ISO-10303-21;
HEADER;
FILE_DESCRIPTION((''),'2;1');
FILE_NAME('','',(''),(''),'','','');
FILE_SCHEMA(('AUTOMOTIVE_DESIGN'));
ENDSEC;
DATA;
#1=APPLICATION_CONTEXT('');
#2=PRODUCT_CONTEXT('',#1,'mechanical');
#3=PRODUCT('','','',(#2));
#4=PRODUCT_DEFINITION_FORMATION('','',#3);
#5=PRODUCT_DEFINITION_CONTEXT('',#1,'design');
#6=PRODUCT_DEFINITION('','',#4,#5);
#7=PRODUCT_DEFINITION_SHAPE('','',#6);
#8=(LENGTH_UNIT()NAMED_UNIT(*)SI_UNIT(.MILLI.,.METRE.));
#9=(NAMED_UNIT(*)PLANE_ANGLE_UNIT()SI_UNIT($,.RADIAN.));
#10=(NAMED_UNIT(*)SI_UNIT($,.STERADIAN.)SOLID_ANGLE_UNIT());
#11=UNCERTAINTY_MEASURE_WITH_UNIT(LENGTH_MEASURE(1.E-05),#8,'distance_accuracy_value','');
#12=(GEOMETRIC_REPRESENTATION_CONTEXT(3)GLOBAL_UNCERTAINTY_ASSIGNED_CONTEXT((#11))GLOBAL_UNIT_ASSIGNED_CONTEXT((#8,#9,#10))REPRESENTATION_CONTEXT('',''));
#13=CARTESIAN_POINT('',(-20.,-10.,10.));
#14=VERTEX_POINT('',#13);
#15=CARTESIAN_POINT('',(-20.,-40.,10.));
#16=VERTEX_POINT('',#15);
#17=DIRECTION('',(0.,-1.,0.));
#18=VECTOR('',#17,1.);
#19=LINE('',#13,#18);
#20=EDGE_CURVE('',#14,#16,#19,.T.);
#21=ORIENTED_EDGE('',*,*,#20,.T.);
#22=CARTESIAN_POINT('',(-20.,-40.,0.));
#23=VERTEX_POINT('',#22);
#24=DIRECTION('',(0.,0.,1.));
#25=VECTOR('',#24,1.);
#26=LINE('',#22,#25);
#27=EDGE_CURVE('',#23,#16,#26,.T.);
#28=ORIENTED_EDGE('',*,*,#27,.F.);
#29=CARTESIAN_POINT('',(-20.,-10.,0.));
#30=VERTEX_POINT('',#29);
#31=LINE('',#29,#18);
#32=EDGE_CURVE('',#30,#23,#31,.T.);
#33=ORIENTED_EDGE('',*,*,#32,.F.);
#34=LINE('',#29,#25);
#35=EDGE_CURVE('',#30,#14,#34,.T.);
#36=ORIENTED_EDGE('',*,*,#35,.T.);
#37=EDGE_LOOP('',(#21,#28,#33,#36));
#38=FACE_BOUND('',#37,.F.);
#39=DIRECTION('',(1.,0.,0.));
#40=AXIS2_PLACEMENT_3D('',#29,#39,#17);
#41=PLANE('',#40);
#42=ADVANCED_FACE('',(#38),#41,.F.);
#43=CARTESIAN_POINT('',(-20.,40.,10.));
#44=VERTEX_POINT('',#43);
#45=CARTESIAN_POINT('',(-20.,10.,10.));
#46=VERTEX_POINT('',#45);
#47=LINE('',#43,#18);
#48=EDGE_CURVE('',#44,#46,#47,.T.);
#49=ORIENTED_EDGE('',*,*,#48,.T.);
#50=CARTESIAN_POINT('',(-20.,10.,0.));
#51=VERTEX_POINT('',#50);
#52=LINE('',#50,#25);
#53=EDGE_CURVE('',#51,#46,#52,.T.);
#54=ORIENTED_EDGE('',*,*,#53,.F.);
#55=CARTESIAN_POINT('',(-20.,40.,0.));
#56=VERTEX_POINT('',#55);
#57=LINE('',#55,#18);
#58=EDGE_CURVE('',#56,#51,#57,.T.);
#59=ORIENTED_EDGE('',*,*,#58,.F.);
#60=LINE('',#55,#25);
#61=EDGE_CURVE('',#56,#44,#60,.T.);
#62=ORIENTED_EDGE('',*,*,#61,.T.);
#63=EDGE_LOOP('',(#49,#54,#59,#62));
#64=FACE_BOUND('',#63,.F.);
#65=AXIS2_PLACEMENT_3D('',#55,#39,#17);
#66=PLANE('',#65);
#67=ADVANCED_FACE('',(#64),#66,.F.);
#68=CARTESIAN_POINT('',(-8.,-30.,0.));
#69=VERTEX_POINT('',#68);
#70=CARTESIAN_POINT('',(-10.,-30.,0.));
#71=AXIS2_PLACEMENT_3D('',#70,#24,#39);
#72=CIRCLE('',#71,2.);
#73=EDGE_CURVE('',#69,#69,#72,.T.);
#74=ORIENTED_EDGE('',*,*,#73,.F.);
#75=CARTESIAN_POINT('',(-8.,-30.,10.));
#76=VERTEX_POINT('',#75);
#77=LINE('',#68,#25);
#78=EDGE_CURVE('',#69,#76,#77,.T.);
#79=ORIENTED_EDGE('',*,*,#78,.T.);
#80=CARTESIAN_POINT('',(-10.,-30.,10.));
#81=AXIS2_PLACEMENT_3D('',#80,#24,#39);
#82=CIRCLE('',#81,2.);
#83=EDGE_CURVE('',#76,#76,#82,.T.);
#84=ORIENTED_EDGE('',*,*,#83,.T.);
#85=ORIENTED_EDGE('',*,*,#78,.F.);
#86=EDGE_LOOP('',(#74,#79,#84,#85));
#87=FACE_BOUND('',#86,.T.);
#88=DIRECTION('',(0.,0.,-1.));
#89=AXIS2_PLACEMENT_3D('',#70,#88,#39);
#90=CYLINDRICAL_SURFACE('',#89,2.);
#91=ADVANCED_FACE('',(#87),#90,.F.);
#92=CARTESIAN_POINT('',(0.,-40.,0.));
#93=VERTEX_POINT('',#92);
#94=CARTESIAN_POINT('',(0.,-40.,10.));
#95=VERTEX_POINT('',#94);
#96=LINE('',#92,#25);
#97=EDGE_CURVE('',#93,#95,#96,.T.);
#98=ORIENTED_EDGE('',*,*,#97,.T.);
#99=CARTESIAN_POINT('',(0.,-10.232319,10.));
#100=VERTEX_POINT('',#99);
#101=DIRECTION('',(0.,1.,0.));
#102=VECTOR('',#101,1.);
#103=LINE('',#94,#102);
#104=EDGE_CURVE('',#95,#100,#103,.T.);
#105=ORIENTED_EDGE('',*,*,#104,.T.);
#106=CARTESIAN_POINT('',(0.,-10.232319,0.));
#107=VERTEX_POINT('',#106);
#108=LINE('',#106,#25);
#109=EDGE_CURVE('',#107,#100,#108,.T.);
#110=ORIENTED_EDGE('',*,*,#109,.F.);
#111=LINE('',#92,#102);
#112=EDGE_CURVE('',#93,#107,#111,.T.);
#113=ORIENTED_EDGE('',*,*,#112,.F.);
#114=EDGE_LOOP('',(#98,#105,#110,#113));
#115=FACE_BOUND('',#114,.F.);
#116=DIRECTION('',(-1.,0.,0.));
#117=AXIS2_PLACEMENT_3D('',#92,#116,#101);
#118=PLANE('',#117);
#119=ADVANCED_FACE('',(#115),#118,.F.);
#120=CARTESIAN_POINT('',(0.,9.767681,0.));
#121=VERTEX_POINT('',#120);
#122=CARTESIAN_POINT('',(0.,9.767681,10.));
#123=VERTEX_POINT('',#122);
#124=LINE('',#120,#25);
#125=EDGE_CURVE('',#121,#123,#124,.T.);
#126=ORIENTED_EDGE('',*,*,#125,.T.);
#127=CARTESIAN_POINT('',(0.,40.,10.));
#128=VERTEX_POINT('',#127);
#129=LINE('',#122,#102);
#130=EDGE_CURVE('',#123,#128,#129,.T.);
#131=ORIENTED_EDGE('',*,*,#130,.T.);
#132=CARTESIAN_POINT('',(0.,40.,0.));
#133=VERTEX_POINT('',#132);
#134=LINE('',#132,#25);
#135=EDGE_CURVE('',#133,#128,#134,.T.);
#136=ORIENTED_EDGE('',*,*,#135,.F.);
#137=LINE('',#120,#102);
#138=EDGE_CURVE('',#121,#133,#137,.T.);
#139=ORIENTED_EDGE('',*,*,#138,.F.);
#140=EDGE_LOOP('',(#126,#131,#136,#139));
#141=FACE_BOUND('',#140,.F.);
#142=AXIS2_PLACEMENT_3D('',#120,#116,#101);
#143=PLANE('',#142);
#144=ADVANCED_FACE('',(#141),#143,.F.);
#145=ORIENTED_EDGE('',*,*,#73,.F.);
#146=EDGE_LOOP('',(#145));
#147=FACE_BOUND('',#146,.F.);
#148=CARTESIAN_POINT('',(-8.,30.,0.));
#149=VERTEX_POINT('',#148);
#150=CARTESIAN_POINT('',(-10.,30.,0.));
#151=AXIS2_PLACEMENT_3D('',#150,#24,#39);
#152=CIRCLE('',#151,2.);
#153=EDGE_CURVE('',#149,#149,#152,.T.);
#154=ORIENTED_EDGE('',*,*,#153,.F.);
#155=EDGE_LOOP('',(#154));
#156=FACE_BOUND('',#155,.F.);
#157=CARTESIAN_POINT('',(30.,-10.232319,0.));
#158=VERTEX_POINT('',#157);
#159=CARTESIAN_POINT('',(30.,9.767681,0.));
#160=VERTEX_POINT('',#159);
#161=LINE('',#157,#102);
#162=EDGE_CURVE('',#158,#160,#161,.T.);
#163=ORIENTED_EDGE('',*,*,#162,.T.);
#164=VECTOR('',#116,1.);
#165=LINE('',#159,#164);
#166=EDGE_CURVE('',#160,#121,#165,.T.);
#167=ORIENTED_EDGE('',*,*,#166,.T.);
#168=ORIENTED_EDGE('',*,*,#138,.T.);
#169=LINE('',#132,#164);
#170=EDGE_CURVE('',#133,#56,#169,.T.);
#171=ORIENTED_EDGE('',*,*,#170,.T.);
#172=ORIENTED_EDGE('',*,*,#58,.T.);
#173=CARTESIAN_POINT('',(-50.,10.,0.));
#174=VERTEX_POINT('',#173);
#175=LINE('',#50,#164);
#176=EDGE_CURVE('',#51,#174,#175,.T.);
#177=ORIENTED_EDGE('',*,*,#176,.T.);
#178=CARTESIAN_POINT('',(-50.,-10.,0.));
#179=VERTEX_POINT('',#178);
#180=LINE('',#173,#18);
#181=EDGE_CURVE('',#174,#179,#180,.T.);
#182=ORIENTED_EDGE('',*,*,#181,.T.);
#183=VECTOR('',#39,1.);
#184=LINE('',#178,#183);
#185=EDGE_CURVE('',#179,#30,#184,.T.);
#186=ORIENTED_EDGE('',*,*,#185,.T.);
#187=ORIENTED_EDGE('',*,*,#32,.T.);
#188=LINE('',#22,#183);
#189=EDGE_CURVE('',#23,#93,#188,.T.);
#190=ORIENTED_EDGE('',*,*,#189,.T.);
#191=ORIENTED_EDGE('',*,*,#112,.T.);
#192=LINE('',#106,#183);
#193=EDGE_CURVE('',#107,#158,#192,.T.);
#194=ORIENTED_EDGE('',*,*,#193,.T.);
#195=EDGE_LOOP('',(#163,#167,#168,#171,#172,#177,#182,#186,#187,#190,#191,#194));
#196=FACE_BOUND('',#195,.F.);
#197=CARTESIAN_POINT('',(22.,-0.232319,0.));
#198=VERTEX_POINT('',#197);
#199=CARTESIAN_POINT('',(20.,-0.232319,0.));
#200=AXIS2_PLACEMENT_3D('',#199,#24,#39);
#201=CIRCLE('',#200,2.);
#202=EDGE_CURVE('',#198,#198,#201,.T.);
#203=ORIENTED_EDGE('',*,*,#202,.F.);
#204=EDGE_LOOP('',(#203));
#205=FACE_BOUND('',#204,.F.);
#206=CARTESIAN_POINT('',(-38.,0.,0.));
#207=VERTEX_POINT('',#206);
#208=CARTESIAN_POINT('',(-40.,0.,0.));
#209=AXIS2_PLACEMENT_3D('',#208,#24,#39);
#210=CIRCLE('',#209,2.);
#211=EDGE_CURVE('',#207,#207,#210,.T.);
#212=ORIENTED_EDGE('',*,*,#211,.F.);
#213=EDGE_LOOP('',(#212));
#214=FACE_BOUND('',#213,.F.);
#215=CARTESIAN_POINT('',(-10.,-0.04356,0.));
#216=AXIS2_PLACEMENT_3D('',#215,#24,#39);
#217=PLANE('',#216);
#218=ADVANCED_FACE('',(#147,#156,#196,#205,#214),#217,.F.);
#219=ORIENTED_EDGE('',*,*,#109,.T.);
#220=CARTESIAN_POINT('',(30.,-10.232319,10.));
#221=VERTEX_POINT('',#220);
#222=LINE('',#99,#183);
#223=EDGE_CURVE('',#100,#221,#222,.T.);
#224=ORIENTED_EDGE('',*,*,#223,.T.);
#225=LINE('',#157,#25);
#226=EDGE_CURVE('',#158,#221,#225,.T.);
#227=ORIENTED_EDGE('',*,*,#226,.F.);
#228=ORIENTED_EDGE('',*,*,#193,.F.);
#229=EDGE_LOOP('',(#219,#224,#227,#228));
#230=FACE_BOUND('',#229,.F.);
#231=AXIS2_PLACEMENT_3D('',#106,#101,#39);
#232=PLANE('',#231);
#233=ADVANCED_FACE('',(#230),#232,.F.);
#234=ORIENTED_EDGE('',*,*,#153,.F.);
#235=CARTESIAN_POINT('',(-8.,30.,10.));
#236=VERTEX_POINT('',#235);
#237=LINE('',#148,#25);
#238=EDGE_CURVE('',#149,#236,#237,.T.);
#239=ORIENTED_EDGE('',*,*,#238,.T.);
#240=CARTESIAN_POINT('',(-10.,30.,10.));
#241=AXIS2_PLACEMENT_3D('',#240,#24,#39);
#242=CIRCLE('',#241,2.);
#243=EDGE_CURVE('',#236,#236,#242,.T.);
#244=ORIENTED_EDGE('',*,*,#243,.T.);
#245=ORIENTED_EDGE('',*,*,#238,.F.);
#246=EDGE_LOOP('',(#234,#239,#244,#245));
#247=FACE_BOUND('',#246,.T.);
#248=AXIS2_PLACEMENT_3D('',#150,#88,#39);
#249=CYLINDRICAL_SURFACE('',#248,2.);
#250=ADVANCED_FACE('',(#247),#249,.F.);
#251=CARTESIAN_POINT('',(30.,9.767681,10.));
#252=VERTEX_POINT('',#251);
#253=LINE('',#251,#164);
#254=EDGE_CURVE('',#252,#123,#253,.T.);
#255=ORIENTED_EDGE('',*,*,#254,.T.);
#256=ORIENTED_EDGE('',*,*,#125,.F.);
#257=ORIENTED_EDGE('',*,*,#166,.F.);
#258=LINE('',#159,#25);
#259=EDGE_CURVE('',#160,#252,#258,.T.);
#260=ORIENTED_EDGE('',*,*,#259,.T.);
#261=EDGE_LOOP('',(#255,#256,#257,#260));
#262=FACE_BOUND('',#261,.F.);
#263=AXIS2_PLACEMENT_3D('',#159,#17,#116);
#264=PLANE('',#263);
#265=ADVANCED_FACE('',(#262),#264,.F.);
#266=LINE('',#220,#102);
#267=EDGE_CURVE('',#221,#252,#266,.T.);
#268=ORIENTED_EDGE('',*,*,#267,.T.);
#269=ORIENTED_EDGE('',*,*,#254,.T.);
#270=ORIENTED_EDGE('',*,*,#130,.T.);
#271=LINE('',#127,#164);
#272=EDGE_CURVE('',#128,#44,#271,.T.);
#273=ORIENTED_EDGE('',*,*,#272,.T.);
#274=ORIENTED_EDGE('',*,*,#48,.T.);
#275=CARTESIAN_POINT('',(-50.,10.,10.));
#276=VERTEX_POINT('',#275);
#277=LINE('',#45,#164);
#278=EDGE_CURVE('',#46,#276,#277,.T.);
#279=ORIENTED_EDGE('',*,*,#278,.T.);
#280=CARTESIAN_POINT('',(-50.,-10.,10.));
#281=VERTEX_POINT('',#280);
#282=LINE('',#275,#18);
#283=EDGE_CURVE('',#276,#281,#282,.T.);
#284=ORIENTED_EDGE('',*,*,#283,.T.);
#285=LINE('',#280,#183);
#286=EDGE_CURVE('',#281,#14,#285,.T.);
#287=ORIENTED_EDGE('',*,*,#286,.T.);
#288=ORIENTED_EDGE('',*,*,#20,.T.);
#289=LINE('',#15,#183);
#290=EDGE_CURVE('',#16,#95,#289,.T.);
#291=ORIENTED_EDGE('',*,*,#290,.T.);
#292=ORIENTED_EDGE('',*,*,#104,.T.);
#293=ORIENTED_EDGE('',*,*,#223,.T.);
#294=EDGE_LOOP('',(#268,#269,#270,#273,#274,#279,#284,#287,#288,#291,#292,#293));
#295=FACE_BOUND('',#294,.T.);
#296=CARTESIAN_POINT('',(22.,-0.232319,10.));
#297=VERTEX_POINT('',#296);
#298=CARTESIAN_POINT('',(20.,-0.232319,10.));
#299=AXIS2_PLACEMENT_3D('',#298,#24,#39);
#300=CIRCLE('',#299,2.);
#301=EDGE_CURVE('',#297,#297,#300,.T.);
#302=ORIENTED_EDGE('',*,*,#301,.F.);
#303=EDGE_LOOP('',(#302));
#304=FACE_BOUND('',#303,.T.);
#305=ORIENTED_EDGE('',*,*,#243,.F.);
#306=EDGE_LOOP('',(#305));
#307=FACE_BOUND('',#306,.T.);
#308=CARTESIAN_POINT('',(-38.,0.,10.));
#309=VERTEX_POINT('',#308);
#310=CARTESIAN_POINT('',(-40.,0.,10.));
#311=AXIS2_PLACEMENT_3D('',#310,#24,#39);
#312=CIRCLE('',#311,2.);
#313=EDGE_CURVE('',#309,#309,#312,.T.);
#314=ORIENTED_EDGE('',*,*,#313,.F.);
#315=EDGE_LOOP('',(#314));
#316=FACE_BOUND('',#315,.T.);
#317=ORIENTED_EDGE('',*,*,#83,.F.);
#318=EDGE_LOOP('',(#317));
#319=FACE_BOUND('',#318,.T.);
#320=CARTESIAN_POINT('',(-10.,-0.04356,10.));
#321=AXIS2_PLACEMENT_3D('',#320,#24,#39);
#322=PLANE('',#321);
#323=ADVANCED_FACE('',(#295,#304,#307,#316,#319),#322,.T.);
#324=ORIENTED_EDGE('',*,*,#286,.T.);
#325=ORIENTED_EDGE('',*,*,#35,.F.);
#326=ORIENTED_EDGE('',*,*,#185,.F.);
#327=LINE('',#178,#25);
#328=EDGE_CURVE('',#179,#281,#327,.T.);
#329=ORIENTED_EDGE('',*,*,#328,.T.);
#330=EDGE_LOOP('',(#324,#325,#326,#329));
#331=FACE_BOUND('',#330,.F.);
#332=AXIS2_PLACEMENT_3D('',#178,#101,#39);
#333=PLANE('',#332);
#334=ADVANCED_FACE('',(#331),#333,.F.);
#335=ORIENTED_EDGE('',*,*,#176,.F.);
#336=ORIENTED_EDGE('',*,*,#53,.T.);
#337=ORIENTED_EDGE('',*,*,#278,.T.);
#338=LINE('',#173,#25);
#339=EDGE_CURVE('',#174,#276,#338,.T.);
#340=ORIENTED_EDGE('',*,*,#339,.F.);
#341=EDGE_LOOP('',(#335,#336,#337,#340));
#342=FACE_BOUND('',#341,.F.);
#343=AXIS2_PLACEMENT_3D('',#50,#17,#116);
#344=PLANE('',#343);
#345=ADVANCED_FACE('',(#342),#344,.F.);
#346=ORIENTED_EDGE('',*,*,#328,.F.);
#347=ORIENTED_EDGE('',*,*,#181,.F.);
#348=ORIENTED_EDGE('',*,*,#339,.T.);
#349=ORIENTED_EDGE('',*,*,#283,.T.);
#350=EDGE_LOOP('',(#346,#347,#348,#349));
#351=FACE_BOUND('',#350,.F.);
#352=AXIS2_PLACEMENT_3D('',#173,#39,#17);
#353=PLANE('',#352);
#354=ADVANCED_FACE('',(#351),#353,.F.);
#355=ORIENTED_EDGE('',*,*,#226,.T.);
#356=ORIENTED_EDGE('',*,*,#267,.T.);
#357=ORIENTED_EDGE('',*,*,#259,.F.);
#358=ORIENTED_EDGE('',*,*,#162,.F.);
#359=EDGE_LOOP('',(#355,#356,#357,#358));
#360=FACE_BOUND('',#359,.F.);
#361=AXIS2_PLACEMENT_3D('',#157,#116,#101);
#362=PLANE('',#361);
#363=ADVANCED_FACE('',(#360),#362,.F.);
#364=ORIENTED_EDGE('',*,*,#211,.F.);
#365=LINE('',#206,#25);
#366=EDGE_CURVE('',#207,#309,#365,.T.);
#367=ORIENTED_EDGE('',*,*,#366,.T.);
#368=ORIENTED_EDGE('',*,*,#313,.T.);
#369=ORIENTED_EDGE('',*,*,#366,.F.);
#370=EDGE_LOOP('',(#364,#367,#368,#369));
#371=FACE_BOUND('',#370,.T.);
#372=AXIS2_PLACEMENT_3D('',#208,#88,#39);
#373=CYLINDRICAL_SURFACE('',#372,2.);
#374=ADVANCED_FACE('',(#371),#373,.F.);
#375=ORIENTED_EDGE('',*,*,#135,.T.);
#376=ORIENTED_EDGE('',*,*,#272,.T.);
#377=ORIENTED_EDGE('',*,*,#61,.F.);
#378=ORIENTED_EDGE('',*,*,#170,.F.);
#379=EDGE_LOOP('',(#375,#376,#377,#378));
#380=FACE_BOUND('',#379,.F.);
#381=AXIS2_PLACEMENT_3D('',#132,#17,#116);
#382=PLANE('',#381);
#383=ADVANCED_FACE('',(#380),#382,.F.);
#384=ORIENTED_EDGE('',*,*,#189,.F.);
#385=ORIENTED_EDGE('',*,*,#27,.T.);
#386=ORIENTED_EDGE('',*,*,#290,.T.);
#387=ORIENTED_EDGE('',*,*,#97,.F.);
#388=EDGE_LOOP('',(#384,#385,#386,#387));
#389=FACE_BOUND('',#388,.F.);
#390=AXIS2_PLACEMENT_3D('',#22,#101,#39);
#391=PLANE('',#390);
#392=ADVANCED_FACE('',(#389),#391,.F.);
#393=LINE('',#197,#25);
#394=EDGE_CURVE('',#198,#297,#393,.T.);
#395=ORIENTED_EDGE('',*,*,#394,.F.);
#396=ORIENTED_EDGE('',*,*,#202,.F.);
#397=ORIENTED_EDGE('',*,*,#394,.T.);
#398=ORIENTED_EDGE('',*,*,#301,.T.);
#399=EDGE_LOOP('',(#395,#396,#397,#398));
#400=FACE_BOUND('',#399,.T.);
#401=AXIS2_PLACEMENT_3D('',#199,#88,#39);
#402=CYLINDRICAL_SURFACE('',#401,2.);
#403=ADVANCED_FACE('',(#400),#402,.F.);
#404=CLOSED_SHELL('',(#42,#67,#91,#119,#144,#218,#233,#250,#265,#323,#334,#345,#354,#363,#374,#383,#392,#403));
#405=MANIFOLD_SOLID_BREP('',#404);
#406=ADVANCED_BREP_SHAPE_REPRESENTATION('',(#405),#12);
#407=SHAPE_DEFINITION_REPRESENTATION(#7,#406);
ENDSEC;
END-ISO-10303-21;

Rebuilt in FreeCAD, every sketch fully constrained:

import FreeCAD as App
import Part
import Sketcher

doc = App.newDocument("Part")
body = doc.addObject("PartDesign::Body", "Body")

# Sketch on XY plane
sketch1 = doc.addObject("Sketcher::SketchObject", "Sketch")
body.addObject(sketch1)
sketch1.AttachmentSupport = (doc.XY_Plane, [""])
sketch1.MapMode = "FlatFace"
sketch1.addGeometry([
    Part.LineSegment(App.Vector(-20, 40, 0), App.Vector(-20, 10, 0)),  # 0
    Part.LineSegment(App.Vector(-20, 10, 0), App.Vector(-50, 10, 0)),  # 1
    Part.LineSegment(App.Vector(-50, 10, 0), App.Vector(-50, -10, 0)),  # 2
    Part.LineSegment(App.Vector(-50, -10, 0), App.Vector(-20, -10, 0)),  # 3
    Part.LineSegment(App.Vector(-20, -10, 0), App.Vector(-20, -40, 0)),  # 4
    Part.LineSegment(App.Vector(-20, -40, 0), App.Vector(0, -40, 0)),  # 5
    Part.LineSegment(App.Vector(0, -40, 0), App.Vector(0, -10.232319, 0)),  # 6
    Part.LineSegment(App.Vector(0, -10.232319, 0), App.Vector(30, -10.232319, 0)),  # 7
    Part.LineSegment(App.Vector(30, -10.232319, 0), App.Vector(30, 9.767681, 0)),  # 8
    Part.LineSegment(App.Vector(30, 9.767681, 0), App.Vector(0, 9.767681, 0)),  # 9
    Part.LineSegment(App.Vector(0, 9.767681, 0), App.Vector(0, 40, 0)),  # 10
    Part.LineSegment(App.Vector(0, 40, 0), App.Vector(-20, 40, 0)),  # 11
    Part.Circle(App.Vector(-10, -30, 0), App.Vector(0, 0, 1), 2),  # 12
    Part.Circle(App.Vector(20, -0.232319, 0), App.Vector(0, 0, 1), 2),  # 13
    Part.Circle(App.Vector(-40, 0, 0), App.Vector(0, 0, 1), 2),  # 14
    Part.Circle(App.Vector(-10, 30, 0), App.Vector(0, 0, 1), 2),  # 15
], False)
sketch1.addConstraint([
    Sketcher.Constraint("Coincident", 0, 2, 1, 1),
    Sketcher.Constraint("Coincident", 1, 2, 2, 1),
    Sketcher.Constraint("Coincident", 2, 2, 3, 1),
    Sketcher.Constraint("Coincident", 3, 2, 4, 1),
    Sketcher.Constraint("Coincident", 4, 2, 5, 1),
    Sketcher.Constraint("Coincident", 5, 2, 6, 1),
    Sketcher.Constraint("Coincident", 6, 2, 7, 1),
    Sketcher.Constraint("Coincident", 7, 2, 8, 1),
    Sketcher.Constraint("Coincident", 8, 2, 9, 1),
    Sketcher.Constraint("Coincident", 9, 2, 10, 1),
    Sketcher.Constraint("Coincident", 10, 2, 11, 1),
    Sketcher.Constraint("Coincident", 11, 2, 0, 1),
    Sketcher.Constraint("Vertical", 0),
    Sketcher.Constraint("Horizontal", 1),
    Sketcher.Constraint("Vertical", 2),
    Sketcher.Constraint("Horizontal", 3),
    Sketcher.Constraint("Vertical", 4),
    Sketcher.Constraint("Horizontal", 5),
    Sketcher.Constraint("Vertical", 6),
    Sketcher.Constraint("Horizontal", 7),
    Sketcher.Constraint("Vertical", 8),
    Sketcher.Constraint("Horizontal", 9),
    Sketcher.Constraint("Vertical", 10),
    Sketcher.Constraint("Horizontal", 11),
    Sketcher.Constraint("Equal", 12, 13),
    Sketcher.Constraint("Equal", 13, 14),
    Sketcher.Constraint("Equal", 14, 15),
    Sketcher.Constraint("Symmetric", 5, 2, 10, 2, -1, 1),
    Sketcher.Constraint("Symmetric", 12, 3, 15, 3, -1),
    Sketcher.Constraint("Symmetric", 0, 2, 3, 2, -1),
    Sketcher.Constraint("PointOnObject", 14, 3, -1),
    Sketcher.Constraint("PointOnObject", 5, 2, -2),
    Sketcher.Constraint("Equal", 3, 7),
    Sketcher.Constraint("Equal", 9, 0),
    Sketcher.Constraint("Equal", 11, 2),
    Sketcher.Constraint("Equal", 2, 8),
    Sketcher.Constraint("Diameter", 12, 4.0),
    Sketcher.Constraint("DistanceX", 1, 2, 1, 1, 30.0),
    Sketcher.Constraint("DistanceX", 5, 1, 5, 2, 20.0),
    Sketcher.Constraint("DistanceX", 12, 3, -1, 1, 10.0),
    Sketcher.Constraint("DistanceY", 12, 3, -1, 1, 30.0),
    Sketcher.Constraint("DistanceX", -1, 1, 13, 3, 20.0),
    Sketcher.Constraint("DistanceX", 14, 3, -1, 1, 40.0),
    Sketcher.Constraint("DistanceY", 6, 2, 13, 3, 10.0),
    Sketcher.Constraint("DistanceY", 6, 1, 6, 2, 29.767681),
])
pad1 = doc.addObject("PartDesign::Pad", "Pad")
body.addObject(pad1)
pad1.Profile = sketch1
pad1.Length = 10

doc.recompute()
